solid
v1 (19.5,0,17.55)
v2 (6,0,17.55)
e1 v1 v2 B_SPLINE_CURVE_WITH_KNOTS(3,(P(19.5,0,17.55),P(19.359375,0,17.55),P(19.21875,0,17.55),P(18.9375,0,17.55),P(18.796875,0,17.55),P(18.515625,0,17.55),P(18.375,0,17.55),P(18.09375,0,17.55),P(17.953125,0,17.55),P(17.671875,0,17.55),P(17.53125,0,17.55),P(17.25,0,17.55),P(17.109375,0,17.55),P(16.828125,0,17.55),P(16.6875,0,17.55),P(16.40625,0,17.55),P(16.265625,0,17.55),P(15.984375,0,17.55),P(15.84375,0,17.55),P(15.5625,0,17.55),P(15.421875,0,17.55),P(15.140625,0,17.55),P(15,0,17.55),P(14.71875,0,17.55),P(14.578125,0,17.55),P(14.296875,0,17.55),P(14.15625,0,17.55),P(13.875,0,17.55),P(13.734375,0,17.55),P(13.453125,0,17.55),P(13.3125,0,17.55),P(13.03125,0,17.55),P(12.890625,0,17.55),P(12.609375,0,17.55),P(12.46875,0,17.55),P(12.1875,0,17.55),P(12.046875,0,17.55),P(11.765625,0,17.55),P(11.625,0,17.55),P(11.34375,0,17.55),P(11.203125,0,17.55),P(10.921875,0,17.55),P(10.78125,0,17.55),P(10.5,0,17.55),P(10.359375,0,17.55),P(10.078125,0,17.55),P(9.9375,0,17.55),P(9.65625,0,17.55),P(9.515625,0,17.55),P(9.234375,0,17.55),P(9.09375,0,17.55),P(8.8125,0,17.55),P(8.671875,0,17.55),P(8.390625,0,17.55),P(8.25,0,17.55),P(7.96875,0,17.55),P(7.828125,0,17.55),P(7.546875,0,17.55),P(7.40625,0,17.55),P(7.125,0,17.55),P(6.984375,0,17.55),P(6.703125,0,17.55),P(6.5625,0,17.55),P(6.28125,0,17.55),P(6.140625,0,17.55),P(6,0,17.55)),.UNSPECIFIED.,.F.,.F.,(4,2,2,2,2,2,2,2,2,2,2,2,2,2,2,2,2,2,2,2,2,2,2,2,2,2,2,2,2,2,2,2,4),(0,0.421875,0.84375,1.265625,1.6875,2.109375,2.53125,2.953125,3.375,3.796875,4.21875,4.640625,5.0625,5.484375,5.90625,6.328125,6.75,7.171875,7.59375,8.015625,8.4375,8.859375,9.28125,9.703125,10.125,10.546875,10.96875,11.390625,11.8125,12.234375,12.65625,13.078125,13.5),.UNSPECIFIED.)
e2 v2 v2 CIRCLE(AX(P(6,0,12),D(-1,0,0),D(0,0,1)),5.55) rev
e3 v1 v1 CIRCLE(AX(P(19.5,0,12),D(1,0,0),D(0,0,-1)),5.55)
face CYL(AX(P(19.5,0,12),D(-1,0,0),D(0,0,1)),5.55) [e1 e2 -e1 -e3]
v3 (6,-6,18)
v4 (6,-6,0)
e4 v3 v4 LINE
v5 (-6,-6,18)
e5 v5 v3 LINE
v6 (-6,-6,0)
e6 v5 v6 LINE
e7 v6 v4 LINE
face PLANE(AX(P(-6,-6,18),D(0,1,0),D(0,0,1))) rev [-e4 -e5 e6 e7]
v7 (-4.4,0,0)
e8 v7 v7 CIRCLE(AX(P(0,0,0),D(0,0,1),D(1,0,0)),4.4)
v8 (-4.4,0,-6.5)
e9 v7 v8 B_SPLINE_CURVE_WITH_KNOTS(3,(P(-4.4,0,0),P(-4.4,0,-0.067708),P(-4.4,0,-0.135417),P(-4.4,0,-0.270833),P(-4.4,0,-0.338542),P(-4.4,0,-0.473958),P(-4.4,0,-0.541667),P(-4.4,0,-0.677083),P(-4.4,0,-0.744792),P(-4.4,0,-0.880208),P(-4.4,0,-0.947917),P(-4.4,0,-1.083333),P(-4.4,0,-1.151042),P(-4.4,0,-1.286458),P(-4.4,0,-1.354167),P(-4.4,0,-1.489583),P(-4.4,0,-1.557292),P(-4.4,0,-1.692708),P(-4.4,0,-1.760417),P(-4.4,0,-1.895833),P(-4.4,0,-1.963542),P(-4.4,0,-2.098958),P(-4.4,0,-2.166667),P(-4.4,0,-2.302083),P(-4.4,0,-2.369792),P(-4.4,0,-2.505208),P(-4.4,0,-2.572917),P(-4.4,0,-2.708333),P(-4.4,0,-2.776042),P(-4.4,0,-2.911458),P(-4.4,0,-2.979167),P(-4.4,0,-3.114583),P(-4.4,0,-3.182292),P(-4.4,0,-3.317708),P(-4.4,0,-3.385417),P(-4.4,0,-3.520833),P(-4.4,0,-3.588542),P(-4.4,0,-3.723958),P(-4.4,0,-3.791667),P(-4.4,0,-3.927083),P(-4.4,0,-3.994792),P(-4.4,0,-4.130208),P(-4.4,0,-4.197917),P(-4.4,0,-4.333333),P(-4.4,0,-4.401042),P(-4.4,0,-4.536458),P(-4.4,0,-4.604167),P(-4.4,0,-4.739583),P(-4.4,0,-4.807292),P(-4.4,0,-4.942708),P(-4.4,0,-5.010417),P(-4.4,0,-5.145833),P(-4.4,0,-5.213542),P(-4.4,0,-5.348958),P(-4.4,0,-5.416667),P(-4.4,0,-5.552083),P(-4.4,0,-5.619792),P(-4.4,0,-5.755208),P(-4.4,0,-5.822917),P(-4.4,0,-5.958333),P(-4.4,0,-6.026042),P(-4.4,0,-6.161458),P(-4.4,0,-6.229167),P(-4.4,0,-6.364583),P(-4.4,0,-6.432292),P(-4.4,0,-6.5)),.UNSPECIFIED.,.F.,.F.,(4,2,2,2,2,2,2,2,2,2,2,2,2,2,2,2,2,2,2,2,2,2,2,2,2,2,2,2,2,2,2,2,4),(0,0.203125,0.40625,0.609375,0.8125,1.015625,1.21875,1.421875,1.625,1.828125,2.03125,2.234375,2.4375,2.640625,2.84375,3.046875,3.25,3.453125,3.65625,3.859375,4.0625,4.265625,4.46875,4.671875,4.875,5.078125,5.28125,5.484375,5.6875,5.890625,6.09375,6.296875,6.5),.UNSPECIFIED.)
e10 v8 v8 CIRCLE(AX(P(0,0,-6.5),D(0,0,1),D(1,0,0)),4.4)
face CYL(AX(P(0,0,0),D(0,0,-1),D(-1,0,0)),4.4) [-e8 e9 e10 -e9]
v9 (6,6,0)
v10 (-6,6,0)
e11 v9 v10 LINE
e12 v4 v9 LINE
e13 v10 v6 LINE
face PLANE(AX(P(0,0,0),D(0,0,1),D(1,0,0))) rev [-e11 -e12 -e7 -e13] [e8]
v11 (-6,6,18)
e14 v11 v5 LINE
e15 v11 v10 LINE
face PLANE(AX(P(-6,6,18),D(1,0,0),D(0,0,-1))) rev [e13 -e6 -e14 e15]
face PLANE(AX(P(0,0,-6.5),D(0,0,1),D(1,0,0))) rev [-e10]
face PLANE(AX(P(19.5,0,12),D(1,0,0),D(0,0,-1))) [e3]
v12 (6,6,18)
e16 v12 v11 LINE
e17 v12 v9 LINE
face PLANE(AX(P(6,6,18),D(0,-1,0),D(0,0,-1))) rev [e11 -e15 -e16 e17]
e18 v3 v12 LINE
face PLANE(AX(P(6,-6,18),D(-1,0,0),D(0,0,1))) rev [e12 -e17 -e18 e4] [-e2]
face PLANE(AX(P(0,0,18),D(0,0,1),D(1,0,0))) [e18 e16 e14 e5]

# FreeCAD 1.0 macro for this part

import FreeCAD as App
import Part
import Sketcher
from FreeCAD import Vector


def add_polygon(sketch, points):
    """Adds a closed chain of lines whose ends are joined by coincident constraints."""
    first, n = sketch.GeometryCount, len(points)
    for a, b in zip(points, points[1:] + points[:1]):
        sketch.addGeometry(Part.LineSegment(App.Vector(*a, 0), App.Vector(*b, 0)), False)
    for i in range(n):
        sketch.addConstraint(Sketcher.Constraint("Coincident", first + i, 2, first + (i + 1) % n, 1))

doc = App.newDocument("Part")
params = doc.addObject("Spreadsheet::Sheet", "Params")
for row, (alias, value) in enumerate([
    ("sketch1_diameter", "8.8 mm"),
    ("pad1_length", "6.5 mm"),
    ("sketch2_width", "12 mm"),
    ("pad2_length", "18 mm"),
    ("sketch3_diameter", "11.1 mm"),
    ("pad3_length", "13.7 mm"),
], start=1):
    params.set(f"A{row}", alias)
    params.set(f"B{row}", "=" + value)
    params.setAlias(f"B{row}", alias)

body = doc.addObject("PartDesign::Body", "Body")

sketch1 = doc.addObject("Sketcher::SketchObject", "Sketch")
body.addObject(sketch1)
sketch1.AttachmentSupport = (doc.XY_Plane, [""])
sketch1.MapMode = "FlatFace"
sketch1.AttachmentOffset = App.Placement(Vector(0, 0, -6.5), App.Rotation())
sketch1.addGeometry(Part.Circle(Vector(0, 0, 0), Vector(0, 0, 1), 4.4), False)
sketch1.addConstraint(Sketcher.Constraint("Coincident", 0, 3, -1, 1))
sketch1.addConstraint(Sketcher.Constraint("Diameter", 0, 8.8))
sketch1.setExpression("Constraints[1]", "Params.sketch1_diameter")
pad1 = doc.addObject("PartDesign::Pad", "Pad")
body.addObject(pad1)
pad1.Profile = sketch1
pad1.setExpression("Length", "Params.pad1_length")

sketch2 = doc.addObject("Sketcher::SketchObject", "Sketch001")
body.addObject(sketch2)
sketch2.AttachmentSupport = (doc.XY_Plane, [""])
sketch2.MapMode = "FlatFace"
add_polygon(sketch2, [(-6, 6), (-6, -6), (6, -6), (6, 6)])
sketch2.addConstraint(Sketcher.Constraint("Vertical", 0))
sketch2.addConstraint(Sketcher.Constraint("Horizontal", 1))
sketch2.addConstraint(Sketcher.Constraint("Vertical", 2))
sketch2.addConstraint(Sketcher.Constraint("Horizontal", 3))
sketch2.addConstraint(Sketcher.Constraint("Symmetric", 0, 2, 2, 2, -1, 1))
sketch2.addConstraint(Sketcher.Constraint("Equal", 3, 0))
sketch2.addConstraint(Sketcher.Constraint("DistanceX", 1, 1, 1, 2, 12.0))
sketch2.setExpression("Constraints[10]", "Params.sketch2_width")
pad2 = doc.addObject("PartDesign::Pad", "Pad001")
body.addObject(pad2)
pad2.Profile = sketch2
pad2.setExpression("Length", "Params.pad2_length")

sketch3 = doc.addObject("Sketcher::SketchObject", "Sketch002")
body.addObject(sketch3)
sketch3.AttachmentSupport = (doc.YZ_Plane, [""])
sketch3.MapMode = "FlatFace"
sketch3.AttachmentOffset = App.Placement(Vector(0, 0, 5.8), App.Rotation())
sketch3.addGeometry(Part.Circle(Vector(0, 12, 0), Vector(0, 0, 1), 6), False)
sketch3.addConstraint(Sketcher.Constraint("PointOnObject", 0, 3, -2))
sketch3.addConstraint(Sketcher.Constraint("Diameter", 0, 11.1))
sketch3.addConstraint(Sketcher.Constraint("DistanceY", -1, 1, 0, 3, 12.0))
sketch3.setExpression("Constraints[1]", "Params.sketch3_diameter")
pad3 = doc.addObject("PartDesign::Pad", "Pad002")
body.addObject(pad3)
pad3.Profile = sketch3
pad3.setExpression("Length", "Params.pad3_length")

doc.recompute()
